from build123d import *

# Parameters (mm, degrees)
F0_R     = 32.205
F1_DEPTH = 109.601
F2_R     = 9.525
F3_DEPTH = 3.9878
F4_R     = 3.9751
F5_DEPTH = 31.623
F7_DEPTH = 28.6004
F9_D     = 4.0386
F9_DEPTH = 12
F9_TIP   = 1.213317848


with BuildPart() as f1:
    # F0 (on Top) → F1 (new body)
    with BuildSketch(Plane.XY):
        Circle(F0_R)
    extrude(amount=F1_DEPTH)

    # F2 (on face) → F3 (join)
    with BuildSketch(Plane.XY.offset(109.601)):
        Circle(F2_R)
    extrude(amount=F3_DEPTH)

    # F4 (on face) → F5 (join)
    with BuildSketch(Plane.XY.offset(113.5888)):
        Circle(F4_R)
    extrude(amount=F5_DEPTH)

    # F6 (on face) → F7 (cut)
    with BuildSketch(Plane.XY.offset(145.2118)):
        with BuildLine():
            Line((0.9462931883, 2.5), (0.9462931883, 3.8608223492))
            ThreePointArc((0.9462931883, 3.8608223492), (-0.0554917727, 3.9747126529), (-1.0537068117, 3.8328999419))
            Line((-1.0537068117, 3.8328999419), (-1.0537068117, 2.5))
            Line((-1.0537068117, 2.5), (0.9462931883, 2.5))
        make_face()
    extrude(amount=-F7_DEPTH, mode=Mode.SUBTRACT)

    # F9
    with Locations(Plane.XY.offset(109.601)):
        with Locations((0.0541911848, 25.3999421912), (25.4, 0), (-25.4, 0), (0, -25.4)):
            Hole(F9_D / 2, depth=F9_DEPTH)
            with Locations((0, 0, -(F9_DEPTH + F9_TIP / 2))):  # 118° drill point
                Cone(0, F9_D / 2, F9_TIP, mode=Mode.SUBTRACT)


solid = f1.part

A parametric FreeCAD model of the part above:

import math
import FreeCAD as App
import Part
import Sketcher

V = App.Vector
Q = App.Units.Quantity

doc = App.newDocument("Part")
body = doc.addObject("PartDesign::Body", "Body")

sketch1 = doc.addObject("Sketcher::SketchObject", "Sketch")
body.addObject(sketch1)
sketch1.AttachmentSupport = (doc.XY_Plane, [""])
sketch1.MapMode = "FlatFace"
sketch1.addGeometry(Part.Circle(V(0, 0, 0), V(0, 0, 1), 32), False)
sketch1.addConstraint(Sketcher.Constraint("Coincident", 0, 3, -1, 1))
sketch1.addConstraint(Sketcher.Constraint("Diameter", 0, 64.41))
pad1 = doc.addObject("PartDesign::Pad", "Pad")
body.addObject(pad1)
pad1.Profile = sketch1
pad1.Length = Q("4.315 in")

sketch2 = doc.addObject("Sketcher::SketchObject", "Sketch001")
body.addObject(sketch2)
sketch2.AttachmentSupport = (doc.XY_Plane, [""])
sketch2.MapMode = "FlatFace"
sketch2.AttachmentOffset = App.Placement(V(0, 0, 4.315 * 25.4), App.Rotation())
sketch2.addGeometry(Part.Circle(V(0, 0, 0), V(0, 0, 1), 10), False)
sketch2.addConstraint(Sketcher.Constraint("Coincident", 0, 3, -1, 1))
sketch2.addConstraint(Sketcher.Constraint("Diameter", 0, Q("0.75 in")))
pad2 = doc.addObject("PartDesign::Pad", "Pad001")
body.addObject(pad2)
pad2.Profile = sketch2
pad2.Length = Q("0.157 in")

sketch3 = doc.addObject("Sketcher::SketchObject", "Sketch002")
body.addObject(sketch3)
sketch3.AttachmentSupport = (doc.XY_Plane, [""])
sketch3.MapMode = "FlatFace"
sketch3.AttachmentOffset = App.Placement(V(0, 0, 4.472 * 25.4), App.Rotation())
sketch3.addGeometry(Part.Circle(V(0, 0, 0), V(0, 0, 1), 4), False)
sketch3.addConstraint(Sketcher.Constraint("Coincident", 0, 3, -1, 1))
sketch3.addConstraint(Sketcher.Constraint("Diameter", 0, Q("0.313 in")))
pad3 = doc.addObject("PartDesign::Pad", "Pad002")
body.addObject(pad3)
pad3.Profile = sketch3
pad3.Length = Q("1.245 in")

sketch4 = doc.addObject("Sketcher::SketchObject", "Sketch003")
body.addObject(sketch4)
sketch4.AttachmentSupport = (doc.XY_Plane, [""])
sketch4.MapMode = "FlatFace"
sketch4.AttachmentOffset = App.Placement(V(0, 0, 5.717 * 25.4), App.Rotation())
sketch4.addGeometry(Part.LineSegment(V(0.9, 2.5, 0), V(0.9, 3.9, 0)), False)
sketch4.addGeometry(Part.ArcOfCircle(Part.Circle(V(0, 0, 0), V(0, 0, 1), 4), math.radians(76), math.radians(105)), False)
sketch4.addGeometry(Part.LineSegment(V(-1.1, 3.8, 0), V(-1.1, 2.5, 0)), False)
sketch4.addGeometry(Part.LineSegment(V(-1.1, 2.5, 0), V(0.9, 2.5, 0)), False)
sketch4.addConstraint(Sketcher.Constraint("Coincident", 0, 2, 1, 1))
sketch4.addConstraint(Sketcher.Constraint("Coincident", 1, 2, 2, 1))
sketch4.addConstraint(Sketcher.Constraint("Coincident", 2, 2, 3, 1))
sketch4.addConstraint(Sketcher.Constraint("Coincident", 3, 2, 0, 1))
sketch4.addConstraint(Sketcher.Constraint("Vertical", 0))
sketch4.addConstraint(Sketcher.Constraint("Vertical", 2))
sketch4.addConstraint(Sketcher.Constraint("Horizontal", 3))
sketch4.addConstraint(Sketcher.Constraint("Coincident", 1, 3, -1, 1))
sketch4.addConstraint(Sketcher.Constraint("Radius", 1, Q("0.1565 in")))
sketch4.addConstraint(Sketcher.Constraint("DistanceX", 3, 1, 3, 2, 2.0))
sketch4.addConstraint(Sketcher.Constraint("DistanceY", 2, 2, 2, 1, 1.3329))
sketch4.addConstraint(Sketcher.Constraint("DistanceY", -1, 1, 1, 2, 3.8329))
pocket1 = doc.addObject("PartDesign::Pocket", "Pocket")
body.addObject(pocket1)
pocket1.Profile = sketch4
pocket1.Length = Q("1.126 in")

sketch5 = doc.addObject("Sketcher::SketchObject", "Sketch004")
body.addObject(sketch5)
sketch5.AttachmentSupport = (doc.XY_Plane, [""])
sketch5.MapMode = "FlatFace"
sketch5.AttachmentOffset = App.Placement(V(0, 0, 4.315 * 25.4), App.Rotation())
sketch5.addGeometry(Part.Circle(V(0.1, 25.4, 0), V(0, 0, 1), 2), False)
sketch5.addGeometry(Part.Circle(V(25.4, 0, 0), V(0, 0, 1), 2), False)
sketch5.addGeometry(Part.Circle(V(-25.4, 0, 0), V(0, 0, 1), 2), False)
sketch5.addGeometry(Part.Circle(V(0, -25.4, 0), V(0, 0, 1), 2), False)
sketch5.addConstraint(Sketcher.Constraint("Equal", 0, 1))
sketch5.addConstraint(Sketcher.Constraint("Equal", 1, 2))
sketch5.addConstraint(Sketcher.Constraint("Equal", 2, 3))
sketch5.addConstraint(Sketcher.Constraint("Symmetric", 1, 3, 2, 3, -1, 1))
sketch5.addConstraint(Sketcher.Constraint("PointOnObject", 1, 3, -1))
sketch5.addConstraint(Sketcher.Constraint("PointOnObject", 3, 3, -2))
sketch5.addConstraint(Sketcher.Constraint("Diameter", 0, Q("0.159 in")))
sketch5.addConstraint(Sketcher.Constraint("DistanceX", -1, 1, 1, 3, Q("1 in")))
sketch5.addConstraint(Sketcher.Constraint("DistanceY", 3, 3, -1, 1, Q("1 in")))
sketch5.addConstraint(Sketcher.Constraint("DistanceX", -1, 1, 0, 3, 0.054191))
sketch5.addConstraint(Sketcher.Constraint("DistanceY", -1, 1, 0, 3, 25.399942))
doc.recompute()
hole = doc.addObject("PartDesign::Hole", "Hole")
body.addObject(hole)
hole.Profile = sketch5
hole.ThreadType = "None"
hole.Diameter = Q("0.159 in")
hole.DepthType = "Dimension"
hole.Depth = 12
hole.DrillPoint = "Angled"
hole.DrillPointAngle = 118

doc.recompute()
